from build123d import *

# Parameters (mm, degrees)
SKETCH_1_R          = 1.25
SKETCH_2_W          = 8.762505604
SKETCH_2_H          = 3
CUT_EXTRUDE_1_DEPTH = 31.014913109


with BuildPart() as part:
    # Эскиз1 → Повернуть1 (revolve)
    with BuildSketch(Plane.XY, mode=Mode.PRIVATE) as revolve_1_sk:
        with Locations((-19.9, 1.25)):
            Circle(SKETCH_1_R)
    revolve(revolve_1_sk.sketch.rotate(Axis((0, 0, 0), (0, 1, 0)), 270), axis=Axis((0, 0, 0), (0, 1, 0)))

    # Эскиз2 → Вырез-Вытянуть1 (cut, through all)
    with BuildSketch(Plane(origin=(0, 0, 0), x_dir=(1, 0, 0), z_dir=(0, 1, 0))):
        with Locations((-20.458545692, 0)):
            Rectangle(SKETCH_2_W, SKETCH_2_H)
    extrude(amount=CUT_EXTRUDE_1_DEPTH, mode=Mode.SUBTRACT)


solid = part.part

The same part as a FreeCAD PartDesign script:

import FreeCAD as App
import Part
import Sketcher


def add_polygon(sketch, points):
    """Adds a closed chain of lines whose ends are joined by coincident constraints."""
    first, n = sketch.GeometryCount, len(points)
    for a, b in zip(points, points[1:] + points[:1]):
        sketch.addGeometry(Part.LineSegment(App.Vector(*a, 0), App.Vector(*b, 0)), False)
    for i in range(n):
        sketch.addConstraint(Sketcher.Constraint("Coincident", first + i, 2, first + (i + 1) % n, 1))

doc = App.newDocument("Part")
body = doc.addObject("PartDesign::Body", "Body")

# Sketch on XY plane
sketch1 = body.newObject("Sketcher::SketchObject", "Sketch")
sketch1.AttachmentSupport = (doc.getObject("XY_Plane"), [""])
sketch1.MapMode = "FlatFace"
sketch1.addGeometry(Part.Circle(App.Vector(-19.9, 1.2, 0), App.Vector(0, 0, 1), 1.2), False)
sketch1.addConstraint([
    Sketcher.Constraint("Diameter", 0, 2.5),
    Sketcher.Constraint("DistanceX", 0, 3, -1, 1, 19.9),
    Sketcher.Constraint("DistanceY", -1, 1, 0, 3, 1.25),
])
revolution = body.newObject("PartDesign::Revolution", "Revolution")
revolution.Profile = sketch1
revolution.ReferenceAxis = (sketch1, ["V_Axis"])
revolution.Angle = 360

# Sketch on XZ plane
sketch2 = body.newObject("Sketcher::SketchObject", "Sketch001")
sketch2.AttachmentSupport = (doc.getObject("XZ_Plane"), [""])
sketch2.MapMode = "FlatFace"
add_polygon(sketch2, [(-24.8, -1.5), (-24.8, 1.5), (-16.1, 1.5), (-16.1, -1.5)])  # lines 0-3
sketch2.addConstraint([
    Sketcher.Constraint("Vertical", 0),
    Sketcher.Constraint("Horizontal", 1),
    Sketcher.Constraint("Vertical", 2),
    Sketcher.Constraint("Horizontal", 3),
    Sketcher.Constraint("DistanceY", 0, 1, 0, 2, 3.0),
    Sketcher.Constraint("DistanceY", -1, 1, 0, 2, 1.5),
    Sketcher.Constraint("DistanceX", 0, 2, -1, 1, 24.839798),
    Sketcher.Constraint("DistanceX", 1, 1, 1, 2, 8.762506),
])
pocket1 = body.newObject("PartDesign::Pocket", "Pocket")
pocket1.Profile = sketch2
pocket1.Type = "ThroughAll"

doc.recompute()
